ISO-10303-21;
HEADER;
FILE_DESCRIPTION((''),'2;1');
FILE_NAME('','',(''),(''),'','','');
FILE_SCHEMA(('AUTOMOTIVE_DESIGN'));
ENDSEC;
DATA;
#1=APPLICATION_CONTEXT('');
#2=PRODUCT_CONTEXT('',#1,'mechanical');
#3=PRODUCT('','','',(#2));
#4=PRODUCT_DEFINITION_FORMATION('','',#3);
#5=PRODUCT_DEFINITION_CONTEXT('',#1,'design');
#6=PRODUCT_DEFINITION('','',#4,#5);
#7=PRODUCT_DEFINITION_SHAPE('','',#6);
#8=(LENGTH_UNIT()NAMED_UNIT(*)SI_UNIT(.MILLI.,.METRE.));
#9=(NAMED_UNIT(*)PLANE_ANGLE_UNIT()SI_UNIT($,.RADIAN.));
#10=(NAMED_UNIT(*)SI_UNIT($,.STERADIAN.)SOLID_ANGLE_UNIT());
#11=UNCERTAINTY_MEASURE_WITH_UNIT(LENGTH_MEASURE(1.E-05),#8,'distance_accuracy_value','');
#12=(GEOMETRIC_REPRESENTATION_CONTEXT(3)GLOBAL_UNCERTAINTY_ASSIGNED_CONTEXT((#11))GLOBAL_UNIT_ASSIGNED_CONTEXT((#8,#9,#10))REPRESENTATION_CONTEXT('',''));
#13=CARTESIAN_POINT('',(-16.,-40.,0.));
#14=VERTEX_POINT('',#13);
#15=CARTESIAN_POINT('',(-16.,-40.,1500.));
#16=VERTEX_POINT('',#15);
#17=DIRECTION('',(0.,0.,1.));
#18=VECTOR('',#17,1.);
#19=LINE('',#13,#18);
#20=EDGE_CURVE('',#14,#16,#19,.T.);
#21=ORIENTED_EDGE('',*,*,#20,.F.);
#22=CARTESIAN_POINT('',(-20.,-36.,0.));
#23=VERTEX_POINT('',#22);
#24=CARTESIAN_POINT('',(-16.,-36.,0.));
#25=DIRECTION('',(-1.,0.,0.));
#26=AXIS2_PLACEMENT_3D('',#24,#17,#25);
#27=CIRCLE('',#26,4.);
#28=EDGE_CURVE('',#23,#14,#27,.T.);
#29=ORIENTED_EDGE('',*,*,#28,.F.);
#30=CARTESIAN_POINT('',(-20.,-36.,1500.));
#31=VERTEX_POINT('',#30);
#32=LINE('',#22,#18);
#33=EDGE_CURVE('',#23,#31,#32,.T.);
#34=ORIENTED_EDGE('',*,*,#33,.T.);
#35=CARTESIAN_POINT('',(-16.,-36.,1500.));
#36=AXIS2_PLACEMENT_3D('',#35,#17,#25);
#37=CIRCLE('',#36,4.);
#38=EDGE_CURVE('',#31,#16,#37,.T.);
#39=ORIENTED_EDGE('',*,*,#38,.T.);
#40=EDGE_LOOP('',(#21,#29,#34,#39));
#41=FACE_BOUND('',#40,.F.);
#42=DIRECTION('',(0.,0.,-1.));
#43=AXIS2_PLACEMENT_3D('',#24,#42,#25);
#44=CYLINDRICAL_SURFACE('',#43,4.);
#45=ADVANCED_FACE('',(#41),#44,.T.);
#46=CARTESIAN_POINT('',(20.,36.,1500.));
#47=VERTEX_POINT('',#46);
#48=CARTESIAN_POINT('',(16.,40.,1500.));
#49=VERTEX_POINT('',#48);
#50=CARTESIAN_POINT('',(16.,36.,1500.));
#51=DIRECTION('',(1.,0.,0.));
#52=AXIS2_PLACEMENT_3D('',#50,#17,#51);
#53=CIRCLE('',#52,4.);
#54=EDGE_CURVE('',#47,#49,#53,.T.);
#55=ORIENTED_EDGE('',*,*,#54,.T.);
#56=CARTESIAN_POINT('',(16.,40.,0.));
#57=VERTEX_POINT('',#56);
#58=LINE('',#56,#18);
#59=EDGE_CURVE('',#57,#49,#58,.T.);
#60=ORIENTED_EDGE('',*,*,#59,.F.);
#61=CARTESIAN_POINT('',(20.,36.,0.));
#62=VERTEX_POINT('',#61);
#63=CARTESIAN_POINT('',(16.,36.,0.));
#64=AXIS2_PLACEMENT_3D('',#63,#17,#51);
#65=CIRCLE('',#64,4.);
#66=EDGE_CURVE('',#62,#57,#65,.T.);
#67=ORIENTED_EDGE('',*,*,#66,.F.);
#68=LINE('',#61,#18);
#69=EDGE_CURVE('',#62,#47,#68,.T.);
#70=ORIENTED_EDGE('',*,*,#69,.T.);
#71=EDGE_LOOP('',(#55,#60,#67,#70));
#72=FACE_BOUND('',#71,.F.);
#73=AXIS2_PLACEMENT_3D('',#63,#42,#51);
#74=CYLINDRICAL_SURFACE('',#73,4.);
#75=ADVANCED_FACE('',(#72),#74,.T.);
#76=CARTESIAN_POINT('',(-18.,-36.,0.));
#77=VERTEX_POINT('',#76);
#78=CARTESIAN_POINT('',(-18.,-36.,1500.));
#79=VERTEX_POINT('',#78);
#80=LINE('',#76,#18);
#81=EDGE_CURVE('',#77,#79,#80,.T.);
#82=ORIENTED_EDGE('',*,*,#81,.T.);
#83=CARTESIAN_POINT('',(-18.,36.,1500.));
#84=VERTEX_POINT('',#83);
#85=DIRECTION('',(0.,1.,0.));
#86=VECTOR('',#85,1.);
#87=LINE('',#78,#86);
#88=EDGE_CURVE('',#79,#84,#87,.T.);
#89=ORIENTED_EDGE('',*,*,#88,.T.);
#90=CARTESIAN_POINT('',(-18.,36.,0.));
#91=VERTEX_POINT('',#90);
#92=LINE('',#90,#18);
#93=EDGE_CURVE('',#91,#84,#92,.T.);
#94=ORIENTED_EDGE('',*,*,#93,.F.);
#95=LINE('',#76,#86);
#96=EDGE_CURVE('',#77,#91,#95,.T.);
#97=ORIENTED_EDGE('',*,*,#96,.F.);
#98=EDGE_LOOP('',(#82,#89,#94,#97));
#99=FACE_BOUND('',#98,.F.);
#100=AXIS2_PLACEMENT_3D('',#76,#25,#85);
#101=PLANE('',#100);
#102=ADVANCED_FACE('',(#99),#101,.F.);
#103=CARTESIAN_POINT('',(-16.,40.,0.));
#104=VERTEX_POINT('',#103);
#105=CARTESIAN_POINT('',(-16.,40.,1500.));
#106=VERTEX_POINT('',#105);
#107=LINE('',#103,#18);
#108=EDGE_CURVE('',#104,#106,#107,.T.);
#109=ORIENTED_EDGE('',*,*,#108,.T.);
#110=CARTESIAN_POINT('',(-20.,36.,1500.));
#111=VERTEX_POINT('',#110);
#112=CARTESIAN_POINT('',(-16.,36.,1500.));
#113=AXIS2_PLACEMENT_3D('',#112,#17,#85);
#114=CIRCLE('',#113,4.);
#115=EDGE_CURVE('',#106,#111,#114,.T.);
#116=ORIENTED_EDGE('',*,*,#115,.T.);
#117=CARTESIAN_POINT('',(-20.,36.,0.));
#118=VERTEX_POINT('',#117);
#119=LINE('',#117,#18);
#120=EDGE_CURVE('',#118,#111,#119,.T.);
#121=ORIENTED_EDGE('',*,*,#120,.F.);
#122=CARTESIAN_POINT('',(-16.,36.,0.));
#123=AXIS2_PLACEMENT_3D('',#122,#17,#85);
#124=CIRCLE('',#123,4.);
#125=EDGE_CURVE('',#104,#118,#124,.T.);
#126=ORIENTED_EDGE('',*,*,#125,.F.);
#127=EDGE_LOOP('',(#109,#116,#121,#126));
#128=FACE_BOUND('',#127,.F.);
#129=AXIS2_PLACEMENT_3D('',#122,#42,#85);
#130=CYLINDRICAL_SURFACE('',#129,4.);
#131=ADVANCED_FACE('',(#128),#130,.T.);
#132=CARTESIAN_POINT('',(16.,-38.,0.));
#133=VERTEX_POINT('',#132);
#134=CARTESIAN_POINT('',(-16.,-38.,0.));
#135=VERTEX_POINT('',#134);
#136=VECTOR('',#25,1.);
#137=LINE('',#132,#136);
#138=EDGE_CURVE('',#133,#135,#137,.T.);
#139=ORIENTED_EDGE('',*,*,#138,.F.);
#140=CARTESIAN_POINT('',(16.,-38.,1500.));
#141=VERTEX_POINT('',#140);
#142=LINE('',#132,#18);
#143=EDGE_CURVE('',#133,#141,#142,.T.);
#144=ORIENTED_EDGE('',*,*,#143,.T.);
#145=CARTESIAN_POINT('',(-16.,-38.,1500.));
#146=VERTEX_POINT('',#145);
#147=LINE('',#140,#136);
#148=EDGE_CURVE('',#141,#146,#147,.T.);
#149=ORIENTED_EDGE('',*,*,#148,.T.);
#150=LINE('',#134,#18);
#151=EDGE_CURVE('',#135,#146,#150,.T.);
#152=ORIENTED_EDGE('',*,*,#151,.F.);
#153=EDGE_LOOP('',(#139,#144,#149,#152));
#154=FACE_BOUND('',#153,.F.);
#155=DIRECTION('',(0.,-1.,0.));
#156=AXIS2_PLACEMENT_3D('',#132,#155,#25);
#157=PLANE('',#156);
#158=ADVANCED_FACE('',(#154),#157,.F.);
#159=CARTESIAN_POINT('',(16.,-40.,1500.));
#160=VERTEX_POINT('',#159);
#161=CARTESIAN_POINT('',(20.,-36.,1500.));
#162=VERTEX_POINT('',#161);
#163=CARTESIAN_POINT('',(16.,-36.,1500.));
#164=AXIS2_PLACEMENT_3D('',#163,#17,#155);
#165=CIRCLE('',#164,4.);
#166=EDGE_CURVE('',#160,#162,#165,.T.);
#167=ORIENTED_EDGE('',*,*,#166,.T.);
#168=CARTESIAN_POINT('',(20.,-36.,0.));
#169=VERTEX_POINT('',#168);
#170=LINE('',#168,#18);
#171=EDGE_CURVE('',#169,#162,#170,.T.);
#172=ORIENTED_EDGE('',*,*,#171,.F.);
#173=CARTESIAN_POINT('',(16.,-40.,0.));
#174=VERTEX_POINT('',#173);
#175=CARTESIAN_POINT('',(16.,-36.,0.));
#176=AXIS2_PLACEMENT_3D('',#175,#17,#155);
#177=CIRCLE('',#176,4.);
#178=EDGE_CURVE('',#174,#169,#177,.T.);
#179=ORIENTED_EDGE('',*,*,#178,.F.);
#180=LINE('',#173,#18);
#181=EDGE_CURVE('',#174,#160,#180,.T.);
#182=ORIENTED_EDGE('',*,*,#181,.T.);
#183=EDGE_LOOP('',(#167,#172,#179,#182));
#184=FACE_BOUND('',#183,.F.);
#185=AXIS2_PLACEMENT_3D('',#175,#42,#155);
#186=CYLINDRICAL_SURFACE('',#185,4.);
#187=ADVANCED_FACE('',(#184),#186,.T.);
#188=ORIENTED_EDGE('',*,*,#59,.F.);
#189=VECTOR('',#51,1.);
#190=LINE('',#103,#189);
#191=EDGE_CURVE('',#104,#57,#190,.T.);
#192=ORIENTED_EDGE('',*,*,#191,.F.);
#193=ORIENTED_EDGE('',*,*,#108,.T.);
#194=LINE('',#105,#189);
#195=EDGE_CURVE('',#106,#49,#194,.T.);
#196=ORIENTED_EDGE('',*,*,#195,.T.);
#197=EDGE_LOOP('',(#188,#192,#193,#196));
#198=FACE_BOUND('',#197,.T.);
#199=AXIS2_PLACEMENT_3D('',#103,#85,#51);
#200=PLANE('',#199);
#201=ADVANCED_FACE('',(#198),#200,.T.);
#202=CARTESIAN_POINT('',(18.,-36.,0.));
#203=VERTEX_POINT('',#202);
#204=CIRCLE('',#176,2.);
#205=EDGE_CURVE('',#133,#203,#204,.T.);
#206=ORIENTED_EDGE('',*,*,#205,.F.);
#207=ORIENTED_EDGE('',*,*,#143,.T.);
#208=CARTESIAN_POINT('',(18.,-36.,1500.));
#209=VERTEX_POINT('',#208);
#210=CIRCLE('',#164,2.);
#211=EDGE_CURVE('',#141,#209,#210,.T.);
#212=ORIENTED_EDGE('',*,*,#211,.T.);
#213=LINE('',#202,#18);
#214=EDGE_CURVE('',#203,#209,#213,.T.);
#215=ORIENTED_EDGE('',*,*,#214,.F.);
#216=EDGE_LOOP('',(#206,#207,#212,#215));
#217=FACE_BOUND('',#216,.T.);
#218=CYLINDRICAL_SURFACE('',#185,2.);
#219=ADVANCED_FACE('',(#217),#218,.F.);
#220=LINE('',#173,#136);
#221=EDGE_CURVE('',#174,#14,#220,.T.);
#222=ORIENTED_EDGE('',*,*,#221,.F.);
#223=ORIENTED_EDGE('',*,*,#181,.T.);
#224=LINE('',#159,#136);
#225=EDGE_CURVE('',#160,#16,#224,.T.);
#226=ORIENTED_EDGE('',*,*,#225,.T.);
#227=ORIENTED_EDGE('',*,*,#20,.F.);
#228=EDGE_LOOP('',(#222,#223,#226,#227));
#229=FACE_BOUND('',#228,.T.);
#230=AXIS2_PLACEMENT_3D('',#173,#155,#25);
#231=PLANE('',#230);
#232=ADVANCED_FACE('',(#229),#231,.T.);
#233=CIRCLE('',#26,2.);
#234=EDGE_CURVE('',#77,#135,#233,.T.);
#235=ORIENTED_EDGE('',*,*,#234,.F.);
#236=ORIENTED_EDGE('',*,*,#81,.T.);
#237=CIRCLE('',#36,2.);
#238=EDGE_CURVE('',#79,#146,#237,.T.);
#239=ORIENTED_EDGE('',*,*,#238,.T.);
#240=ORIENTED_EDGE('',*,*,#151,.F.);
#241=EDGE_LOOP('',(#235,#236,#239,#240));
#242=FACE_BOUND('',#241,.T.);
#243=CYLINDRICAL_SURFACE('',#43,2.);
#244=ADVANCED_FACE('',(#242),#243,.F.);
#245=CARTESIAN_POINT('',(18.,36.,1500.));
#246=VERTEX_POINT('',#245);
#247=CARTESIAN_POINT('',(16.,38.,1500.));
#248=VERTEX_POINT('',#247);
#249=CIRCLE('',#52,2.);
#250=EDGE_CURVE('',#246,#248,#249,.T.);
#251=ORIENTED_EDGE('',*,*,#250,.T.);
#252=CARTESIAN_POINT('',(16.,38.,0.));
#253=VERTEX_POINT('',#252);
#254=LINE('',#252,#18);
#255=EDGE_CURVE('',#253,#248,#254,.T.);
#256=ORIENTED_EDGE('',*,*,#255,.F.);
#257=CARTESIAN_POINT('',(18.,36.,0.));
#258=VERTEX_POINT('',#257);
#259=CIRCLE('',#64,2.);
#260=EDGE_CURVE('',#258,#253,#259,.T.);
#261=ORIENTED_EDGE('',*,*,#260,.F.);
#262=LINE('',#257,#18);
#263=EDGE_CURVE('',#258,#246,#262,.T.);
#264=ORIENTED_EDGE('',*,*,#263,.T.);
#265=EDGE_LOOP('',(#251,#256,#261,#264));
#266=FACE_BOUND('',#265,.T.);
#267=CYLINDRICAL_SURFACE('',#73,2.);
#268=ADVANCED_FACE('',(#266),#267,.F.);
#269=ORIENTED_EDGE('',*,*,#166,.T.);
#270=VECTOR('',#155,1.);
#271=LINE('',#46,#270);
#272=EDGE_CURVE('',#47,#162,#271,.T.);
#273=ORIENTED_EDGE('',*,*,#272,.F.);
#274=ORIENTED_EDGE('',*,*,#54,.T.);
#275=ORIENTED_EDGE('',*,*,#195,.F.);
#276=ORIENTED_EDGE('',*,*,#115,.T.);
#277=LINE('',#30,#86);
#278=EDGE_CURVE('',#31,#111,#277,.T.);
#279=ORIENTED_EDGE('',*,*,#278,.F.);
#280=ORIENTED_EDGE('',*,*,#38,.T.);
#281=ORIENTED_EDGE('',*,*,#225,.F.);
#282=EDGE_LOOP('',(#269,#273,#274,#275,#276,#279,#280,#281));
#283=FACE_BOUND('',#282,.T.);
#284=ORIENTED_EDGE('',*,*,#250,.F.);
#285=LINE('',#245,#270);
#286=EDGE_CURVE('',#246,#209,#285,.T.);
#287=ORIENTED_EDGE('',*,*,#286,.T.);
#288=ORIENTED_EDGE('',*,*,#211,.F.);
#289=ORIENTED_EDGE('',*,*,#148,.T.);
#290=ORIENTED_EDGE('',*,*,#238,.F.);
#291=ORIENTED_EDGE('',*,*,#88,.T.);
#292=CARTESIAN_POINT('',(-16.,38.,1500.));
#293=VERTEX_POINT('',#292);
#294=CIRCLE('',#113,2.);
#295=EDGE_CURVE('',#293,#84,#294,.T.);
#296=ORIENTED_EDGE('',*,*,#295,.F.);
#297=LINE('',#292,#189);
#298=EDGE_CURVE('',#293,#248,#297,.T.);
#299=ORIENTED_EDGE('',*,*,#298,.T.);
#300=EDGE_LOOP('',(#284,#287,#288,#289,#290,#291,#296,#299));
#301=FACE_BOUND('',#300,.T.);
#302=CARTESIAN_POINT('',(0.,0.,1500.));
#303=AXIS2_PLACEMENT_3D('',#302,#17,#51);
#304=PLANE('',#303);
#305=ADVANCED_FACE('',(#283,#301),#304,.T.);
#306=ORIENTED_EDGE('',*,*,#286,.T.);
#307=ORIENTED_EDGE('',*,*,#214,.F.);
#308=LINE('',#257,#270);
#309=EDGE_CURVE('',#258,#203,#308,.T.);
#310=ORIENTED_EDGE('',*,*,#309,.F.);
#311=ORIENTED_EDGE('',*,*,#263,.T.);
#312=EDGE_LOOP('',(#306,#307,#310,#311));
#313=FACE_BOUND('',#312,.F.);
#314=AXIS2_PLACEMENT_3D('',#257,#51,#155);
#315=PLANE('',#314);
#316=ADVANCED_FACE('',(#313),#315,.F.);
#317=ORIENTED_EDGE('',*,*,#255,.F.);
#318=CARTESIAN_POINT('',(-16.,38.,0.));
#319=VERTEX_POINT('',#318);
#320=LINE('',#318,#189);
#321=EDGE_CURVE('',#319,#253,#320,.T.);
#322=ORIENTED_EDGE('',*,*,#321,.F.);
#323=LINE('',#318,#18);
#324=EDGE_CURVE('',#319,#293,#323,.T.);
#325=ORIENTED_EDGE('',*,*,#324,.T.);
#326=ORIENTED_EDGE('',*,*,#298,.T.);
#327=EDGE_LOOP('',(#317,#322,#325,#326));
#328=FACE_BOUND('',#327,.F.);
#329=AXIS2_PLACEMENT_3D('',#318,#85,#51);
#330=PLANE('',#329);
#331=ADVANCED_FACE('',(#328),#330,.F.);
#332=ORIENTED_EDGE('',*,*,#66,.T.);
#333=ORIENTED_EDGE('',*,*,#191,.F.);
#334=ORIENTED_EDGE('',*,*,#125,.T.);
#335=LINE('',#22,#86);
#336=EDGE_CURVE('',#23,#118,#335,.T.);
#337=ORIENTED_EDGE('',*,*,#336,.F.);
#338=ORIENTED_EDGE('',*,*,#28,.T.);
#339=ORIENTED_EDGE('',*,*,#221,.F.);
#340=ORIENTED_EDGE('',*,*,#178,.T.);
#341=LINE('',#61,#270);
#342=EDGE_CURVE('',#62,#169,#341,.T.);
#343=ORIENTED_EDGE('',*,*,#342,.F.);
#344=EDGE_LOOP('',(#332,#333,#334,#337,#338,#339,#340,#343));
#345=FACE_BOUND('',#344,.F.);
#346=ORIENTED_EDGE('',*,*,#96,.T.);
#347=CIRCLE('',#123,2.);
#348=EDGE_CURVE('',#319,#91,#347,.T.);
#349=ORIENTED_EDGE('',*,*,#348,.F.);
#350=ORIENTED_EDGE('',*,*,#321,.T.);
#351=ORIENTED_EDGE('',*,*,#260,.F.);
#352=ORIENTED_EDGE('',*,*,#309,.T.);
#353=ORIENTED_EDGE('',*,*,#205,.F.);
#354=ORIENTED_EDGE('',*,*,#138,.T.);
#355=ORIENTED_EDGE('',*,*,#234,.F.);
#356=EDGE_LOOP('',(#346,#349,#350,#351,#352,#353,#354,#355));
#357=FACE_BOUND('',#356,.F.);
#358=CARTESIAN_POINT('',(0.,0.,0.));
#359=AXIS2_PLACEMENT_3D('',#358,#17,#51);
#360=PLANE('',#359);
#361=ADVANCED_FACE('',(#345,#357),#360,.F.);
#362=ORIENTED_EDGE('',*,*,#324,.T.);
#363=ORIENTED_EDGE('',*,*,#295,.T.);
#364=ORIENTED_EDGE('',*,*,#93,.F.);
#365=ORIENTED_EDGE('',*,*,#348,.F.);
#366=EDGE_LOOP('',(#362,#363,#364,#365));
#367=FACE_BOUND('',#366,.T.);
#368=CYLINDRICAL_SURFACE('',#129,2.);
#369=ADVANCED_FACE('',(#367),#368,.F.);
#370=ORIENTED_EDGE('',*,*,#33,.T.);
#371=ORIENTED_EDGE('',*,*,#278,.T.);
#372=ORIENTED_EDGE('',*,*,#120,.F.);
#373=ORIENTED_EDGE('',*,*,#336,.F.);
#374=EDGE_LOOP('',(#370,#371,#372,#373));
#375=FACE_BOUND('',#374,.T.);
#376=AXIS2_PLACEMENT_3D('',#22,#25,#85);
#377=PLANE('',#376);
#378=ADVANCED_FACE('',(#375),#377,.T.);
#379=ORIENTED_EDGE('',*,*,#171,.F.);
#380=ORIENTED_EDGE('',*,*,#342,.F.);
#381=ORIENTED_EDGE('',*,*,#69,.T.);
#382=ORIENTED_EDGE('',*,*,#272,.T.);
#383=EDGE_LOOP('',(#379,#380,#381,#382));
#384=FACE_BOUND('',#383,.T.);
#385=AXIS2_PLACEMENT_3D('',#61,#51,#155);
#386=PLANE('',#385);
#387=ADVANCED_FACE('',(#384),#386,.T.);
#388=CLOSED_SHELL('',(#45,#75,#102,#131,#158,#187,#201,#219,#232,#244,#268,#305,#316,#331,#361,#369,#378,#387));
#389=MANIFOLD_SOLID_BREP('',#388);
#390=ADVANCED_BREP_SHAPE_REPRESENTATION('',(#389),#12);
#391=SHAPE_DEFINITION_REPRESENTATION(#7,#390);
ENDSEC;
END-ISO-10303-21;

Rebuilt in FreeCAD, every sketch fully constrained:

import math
import FreeCAD as App
import Part
import Sketcher
Q = App.Units.Quantity

doc = App.newDocument("Part")
body = doc.addObject("PartDesign::Body", "Body")

# Sketch on XY plane
sketch1 = body.newObject("Sketcher::SketchObject", "Sketch")
sketch1.AttachmentSupport = (doc.getObject("XY_Plane"), [""])
sketch1.MapMode = "FlatFace"
sketch1.addGeometry([
    Part.LineSegment(App.Vector(-20, 36, 0), App.Vector(-20, -36, 0)),  # 0
    Part.ArcOfCircle(Part.Circle(App.Vector(-16, -36, 0), App.Vector(0, 0, 1), 4), math.radians(180), math.radians(270)),  # 1
    Part.LineSegment(App.Vector(-16, -40, 0), App.Vector(16, -40, 0)),  # 2
    Part.ArcOfCircle(Part.Circle(App.Vector(16, -36, 0), App.Vector(0, 0, 1), 4), math.radians(-90), math.radians(0)),  # 3
    Part.LineSegment(App.Vector(20, -36, 0), App.Vector(20, 36, 0)),  # 4
    Part.ArcOfCircle(Part.Circle(App.Vector(16, 36, 0), App.Vector(0, 0, 1), 4), math.radians(0), math.radians(90)),  # 5
    Part.LineSegment(App.Vector(16, 40, 0), App.Vector(-16, 40, 0)),  # 6
    Part.ArcOfCircle(Part.Circle(App.Vector(-16, 36, 0), App.Vector(0, 0, 1), 4), math.radians(90), math.radians(180)),  # 7
    Part.ArcOfCircle(Part.Circle(App.Vector(-16, 36, 0), App.Vector(0, 0, 1), 2), math.radians(90), math.radians(180)),  # 8
    Part.LineSegment(App.Vector(-16, 38, 0), App.Vector(16, 38, 0)),  # 9
    Part.ArcOfCircle(Part.Circle(App.Vector(16, 36, 0), App.Vector(0, 0, 1), 2), math.radians(0), math.radians(90)),  # 10
    Part.LineSegment(App.Vector(18, 36, 0), App.Vector(18, -36, 0)),  # 11
    Part.ArcOfCircle(Part.Circle(App.Vector(16, -36, 0), App.Vector(0, 0, 1), 2), math.radians(-90), math.radians(0)),  # 12
    Part.LineSegment(App.Vector(16, -38, 0), App.Vector(-16, -38, 0)),  # 13
    Part.ArcOfCircle(Part.Circle(App.Vector(-16, -36, 0), App.Vector(0, 0, 1), 2), math.radians(180), math.radians(270)),  # 14
    Part.LineSegment(App.Vector(-18, -36, 0), App.Vector(-18, 36, 0)),  # 15
], False)
sketch1.addConstraint([
    Sketcher.Constraint("Tangent", 0, 2, 1, 1),
    Sketcher.Constraint("Tangent", 1, 2, 2, 1),
    Sketcher.Constraint("Tangent", 2, 2, 3, 1),
    Sketcher.Constraint("Tangent", 3, 2, 4, 1),
    Sketcher.Constraint("Tangent", 4, 2, 5, 1),
    Sketcher.Constraint("Tangent", 5, 2, 6, 1),
    Sketcher.Constraint("Tangent", 6, 2, 7, 1),
    Sketcher.Constraint("Tangent", 7, 2, 0, 1),
    Sketcher.Constraint("Tangent", 8, 1, 9, 1),
    Sketcher.Constraint("Tangent", 9, 2, 10, 2),
    Sketcher.Constraint("Tangent", 10, 1, 11, 1),
    Sketcher.Constraint("Tangent", 11, 2, 12, 2),
    Sketcher.Constraint("Tangent", 12, 1, 13, 1),
    Sketcher.Constraint("Tangent", 13, 2, 14, 2),
    Sketcher.Constraint("Tangent", 14, 1, 15, 1),
    Sketcher.Constraint("Tangent", 15, 2, 8, 2),
    Sketcher.Constraint("Vertical", 0),
    Sketcher.Constraint("Horizontal", 2),
    Sketcher.Constraint("Vertical", 4),
    Sketcher.Constraint("Horizontal", 6),
    Sketcher.Constraint("Horizontal", 9),
    Sketcher.Constraint("Vertical", 11),
    Sketcher.Constraint("Horizontal", 13),
    Sketcher.Constraint("Vertical", 15),
    Sketcher.Constraint("Coincident", 8, 3, 7, 3),
    Sketcher.Constraint("Coincident", 10, 3, 5, 3),
    Sketcher.Constraint("Coincident", 12, 3, 3, 3),
    Sketcher.Constraint("Equal", 1, 3),
    Sketcher.Constraint("Equal", 3, 5),
    Sketcher.Constraint("Equal", 5, 7),
    Sketcher.Constraint("Equal", 12, 14),
    Sketcher.Constraint("Symmetric", 1, 3, 5, 3, -1, 1),
    Sketcher.Constraint("Radius", 1, Q("4 mm")),
    Sketcher.Constraint("Radius", 8, Q("2 mm")),
    Sketcher.Constraint("DistanceX", 0, 2, -1, 1, Q("20 mm")),
    Sketcher.Constraint("DistanceY", 1, 2, -1, 1, Q("40 mm")),
])
pad1 = body.newObject("PartDesign::Pad", "Pad")
pad1.Profile = sketch1
pad1.Length = 1500

doc.recompute()
